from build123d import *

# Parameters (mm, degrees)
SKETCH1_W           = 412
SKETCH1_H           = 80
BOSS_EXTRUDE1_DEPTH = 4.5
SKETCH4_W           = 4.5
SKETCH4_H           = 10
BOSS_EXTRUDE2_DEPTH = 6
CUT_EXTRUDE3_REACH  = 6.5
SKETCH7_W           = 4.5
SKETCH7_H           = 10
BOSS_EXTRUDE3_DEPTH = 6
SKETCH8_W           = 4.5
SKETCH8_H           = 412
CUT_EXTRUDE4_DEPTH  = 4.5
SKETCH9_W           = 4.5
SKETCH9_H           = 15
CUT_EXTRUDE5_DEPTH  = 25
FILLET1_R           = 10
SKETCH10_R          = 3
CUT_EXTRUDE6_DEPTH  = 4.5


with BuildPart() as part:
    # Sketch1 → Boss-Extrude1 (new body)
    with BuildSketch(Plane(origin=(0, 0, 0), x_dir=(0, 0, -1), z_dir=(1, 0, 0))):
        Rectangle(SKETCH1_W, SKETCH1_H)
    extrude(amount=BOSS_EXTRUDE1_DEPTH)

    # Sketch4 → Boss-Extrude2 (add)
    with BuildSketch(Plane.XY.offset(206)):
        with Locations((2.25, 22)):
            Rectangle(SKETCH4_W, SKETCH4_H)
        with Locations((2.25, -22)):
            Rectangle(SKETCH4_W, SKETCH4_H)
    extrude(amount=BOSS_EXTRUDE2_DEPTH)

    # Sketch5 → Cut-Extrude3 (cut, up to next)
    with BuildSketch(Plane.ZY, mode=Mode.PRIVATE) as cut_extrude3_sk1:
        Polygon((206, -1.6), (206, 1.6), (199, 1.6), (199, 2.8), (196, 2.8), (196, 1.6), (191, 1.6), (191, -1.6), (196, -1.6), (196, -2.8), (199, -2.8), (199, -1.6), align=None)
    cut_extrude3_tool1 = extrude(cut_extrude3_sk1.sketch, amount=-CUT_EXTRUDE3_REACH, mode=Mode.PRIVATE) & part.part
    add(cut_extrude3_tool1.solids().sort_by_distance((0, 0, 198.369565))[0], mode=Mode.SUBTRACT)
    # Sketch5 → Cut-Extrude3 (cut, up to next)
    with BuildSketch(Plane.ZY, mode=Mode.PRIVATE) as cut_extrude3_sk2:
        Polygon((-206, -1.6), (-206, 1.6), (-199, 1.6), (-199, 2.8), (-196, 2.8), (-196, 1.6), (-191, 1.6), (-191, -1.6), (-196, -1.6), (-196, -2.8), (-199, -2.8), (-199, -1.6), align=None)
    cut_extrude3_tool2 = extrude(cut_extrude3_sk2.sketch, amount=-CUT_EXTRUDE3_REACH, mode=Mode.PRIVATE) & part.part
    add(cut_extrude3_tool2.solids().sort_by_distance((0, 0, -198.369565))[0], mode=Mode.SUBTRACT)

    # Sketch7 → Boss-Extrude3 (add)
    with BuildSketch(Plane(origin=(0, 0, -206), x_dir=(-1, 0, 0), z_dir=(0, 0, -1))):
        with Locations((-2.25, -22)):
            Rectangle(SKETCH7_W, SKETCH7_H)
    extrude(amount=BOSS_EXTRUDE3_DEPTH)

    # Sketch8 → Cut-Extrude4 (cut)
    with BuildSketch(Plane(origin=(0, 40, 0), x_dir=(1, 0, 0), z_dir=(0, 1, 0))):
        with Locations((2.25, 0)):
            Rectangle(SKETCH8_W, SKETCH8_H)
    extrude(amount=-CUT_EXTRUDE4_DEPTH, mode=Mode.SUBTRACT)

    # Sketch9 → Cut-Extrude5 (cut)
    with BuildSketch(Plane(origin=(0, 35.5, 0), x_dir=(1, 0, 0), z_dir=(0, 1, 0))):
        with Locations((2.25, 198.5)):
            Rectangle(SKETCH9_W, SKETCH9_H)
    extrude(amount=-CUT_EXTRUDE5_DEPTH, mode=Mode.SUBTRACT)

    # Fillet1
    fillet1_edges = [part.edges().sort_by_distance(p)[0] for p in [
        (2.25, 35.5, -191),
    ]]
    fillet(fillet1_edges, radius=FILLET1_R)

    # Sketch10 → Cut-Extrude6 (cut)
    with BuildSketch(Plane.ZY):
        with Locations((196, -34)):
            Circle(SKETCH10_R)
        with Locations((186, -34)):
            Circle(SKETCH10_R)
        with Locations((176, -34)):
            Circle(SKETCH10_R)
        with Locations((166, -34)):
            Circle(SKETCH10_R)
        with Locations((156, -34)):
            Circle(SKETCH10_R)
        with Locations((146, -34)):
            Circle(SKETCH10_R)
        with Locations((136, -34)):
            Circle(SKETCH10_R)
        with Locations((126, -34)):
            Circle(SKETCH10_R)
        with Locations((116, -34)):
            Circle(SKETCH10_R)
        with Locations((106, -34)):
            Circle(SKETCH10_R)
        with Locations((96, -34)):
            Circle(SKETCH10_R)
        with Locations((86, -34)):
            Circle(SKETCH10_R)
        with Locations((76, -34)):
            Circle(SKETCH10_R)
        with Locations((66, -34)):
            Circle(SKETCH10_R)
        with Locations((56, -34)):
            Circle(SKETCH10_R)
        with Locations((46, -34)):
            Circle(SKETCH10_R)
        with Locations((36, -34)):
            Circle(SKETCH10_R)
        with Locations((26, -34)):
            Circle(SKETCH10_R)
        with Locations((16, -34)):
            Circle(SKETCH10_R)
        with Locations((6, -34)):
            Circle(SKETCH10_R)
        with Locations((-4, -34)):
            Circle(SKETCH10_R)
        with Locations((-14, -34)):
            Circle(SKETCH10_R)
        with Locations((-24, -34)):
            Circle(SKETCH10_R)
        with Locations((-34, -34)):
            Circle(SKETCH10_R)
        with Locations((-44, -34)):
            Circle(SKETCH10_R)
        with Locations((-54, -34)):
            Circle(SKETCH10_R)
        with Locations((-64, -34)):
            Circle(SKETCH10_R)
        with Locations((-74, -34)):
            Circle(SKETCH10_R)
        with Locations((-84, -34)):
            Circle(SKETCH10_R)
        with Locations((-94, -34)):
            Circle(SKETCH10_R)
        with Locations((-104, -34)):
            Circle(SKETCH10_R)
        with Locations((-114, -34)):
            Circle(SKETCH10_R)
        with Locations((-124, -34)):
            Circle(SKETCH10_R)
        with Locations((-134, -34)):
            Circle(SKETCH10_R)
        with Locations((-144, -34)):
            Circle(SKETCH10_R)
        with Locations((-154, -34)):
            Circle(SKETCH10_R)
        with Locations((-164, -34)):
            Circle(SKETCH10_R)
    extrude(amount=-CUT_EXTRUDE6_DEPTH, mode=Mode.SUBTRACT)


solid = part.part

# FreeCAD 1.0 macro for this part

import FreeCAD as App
import Part
import Sketcher
from FreeCAD import Vector
Q = App.Units.Quantity


def edges_at(feature, points):
    """Names of the edges that pass closest to the given points."""
    edges = feature.Shape.Edges
    near = lambda p: min(range(len(edges)), key=lambda i: edges[i].distToShape(Part.Vertex(*p))[0])
    return sorted({f"Edge{near(p) + 1}" for p in points})


def add_polygon(sketch, points):
    """Adds a closed chain of lines whose ends are joined by coincident constraints."""
    first, n = sketch.GeometryCount, len(points)
    for a, b in zip(points, points[1:] + points[:1]):
        sketch.addGeometry(Part.LineSegment(App.Vector(*a, 0), App.Vector(*b, 0)), False)
    for i in range(n):
        sketch.addConstraint(Sketcher.Constraint("Coincident", first + i, 2, first + (i + 1) % n, 1))

doc = App.newDocument("Part")
body = doc.addObject("PartDesign::Body", "Body")

sketch1 = body.newObject("Sketcher::SketchObject", "Sketch")
sketch1.AttachmentSupport = (doc.getObject("YZ_Plane"), [""])
sketch1.MapMode = "FlatFace"
add_polygon(sketch1, [(40, 206), (-40, 206), (-40, -206), (40, -206)])
sketch1.addConstraint(Sketcher.Constraint("Horizontal", 0))
sketch1.addConstraint(Sketcher.Constraint("Vertical", 1))
sketch1.addConstraint(Sketcher.Constraint("Horizontal", 2))
sketch1.addConstraint(Sketcher.Constraint("Vertical", 3))
sketch1.addConstraint(Sketcher.Constraint("Symmetric", 0, 2, 2, 2, -1, 1))
sketch1.addConstraint(Sketcher.Constraint("DistanceX", 0, 2, 0, 1, Q("80 mm")))
sketch1.addConstraint(Sketcher.Constraint("DistanceY", 1, 2, 1, 1, Q("412 mm")))
pad1 = body.newObject("PartDesign::Pad", "Pad")
pad1.Profile = sketch1
pad1.Length = 4.5

sketch2 = body.newObject("Sketcher::SketchObject", "Sketch001")
sketch2.AttachmentSupport = (doc.getObject("XY_Plane"), [""])
sketch2.MapMode = "FlatFace"
sketch2.AttachmentOffset = App.Placement(Vector(0, 0, 206), App.Rotation())
add_polygon(sketch2, [(0, 27), (0, 17), (4.5, 17), (4.5, 27)])
add_polygon(sketch2, [(0, -17), (0, -27), (4.5, -27), (4.5, -17)])
sketch2.addConstraint(Sketcher.Constraint("Vertical", 0))
sketch2.addConstraint(Sketcher.Constraint("Horizontal", 1))
sketch2.addConstraint(Sketcher.Constraint("Vertical", 2))
sketch2.addConstraint(Sketcher.Constraint("Horizontal", 3))
sketch2.addConstraint(Sketcher.Constraint("Vertical", 4))
sketch2.addConstraint(Sketcher.Constraint("Horizontal", 5))
sketch2.addConstraint(Sketcher.Constraint("Vertical", 6))
sketch2.addConstraint(Sketcher.Constraint("Horizontal", 7))
sketch2.addConstraint(Sketcher.Constraint("Symmetric", 3, 2, 4, 2, -1, 1))
sketch2.addConstraint(Sketcher.Constraint("Symmetric", 1, 2, 6, 2, -1))
sketch2.addConstraint(Sketcher.Constraint("PointOnObject", 0, 2, -2))
sketch2.addConstraint(Sketcher.Constraint("DistanceY", 0, 2, 0, 1, Q("10 mm")))
sketch2.addConstraint(Sketcher.Constraint("DistanceX", 1, 1, 1, 2, Q("4.5 mm")))
sketch2.addConstraint(Sketcher.Constraint("DistanceY", -1, 1, 0, 2, Q("17 mm")))
pad2 = body.newObject("PartDesign::Pad", "Pad001")
pad2.Profile = sketch2
pad2.Length = 6

sketch3 = body.newObject("Sketcher::SketchObject", "Sketch002")
sketch3.AttachmentSupport = (doc.getObject("YZ_Plane"), [""])
sketch3.MapMode = "FlatFace"
add_polygon(sketch3, [(-1.6, 206), (1.6, 206), (1.6, 199), (2.8, 199), (2.8, 196), (1.6, 196), (1.6, 191), (-1.6, 191), (-1.6, 196), (-2.8, 196), (-2.8, 199), (-1.6, 199)])
sketch3.addConstraint(Sketcher.Constraint("Horizontal", 0))
sketch3.addConstraint(Sketcher.Constraint("Vertical", 1))
sketch3.addConstraint(Sketcher.Constraint("Horizontal", 2))
sketch3.addConstraint(Sketcher.Constraint("Vertical", 3))
sketch3.addConstraint(Sketcher.Constraint("Horizontal", 4))
sketch3.addConstraint(Sketcher.Constraint("Vertical", 5))
sketch3.addConstraint(Sketcher.Constraint("Horizontal", 6))
sketch3.addConstraint(Sketcher.Constraint("Vertical", 7))
sketch3.addConstraint(Sketcher.Constraint("Horizontal", 8))
sketch3.addConstraint(Sketcher.Constraint("Vertical", 9))
sketch3.addConstraint(Sketcher.Constraint("Horizontal", 10))
sketch3.addConstraint(Sketcher.Constraint("Vertical", 11))
sketch3.addConstraint(Sketcher.Constraint("Symmetric", 4, 2, 7, 2, -2))
sketch3.addConstraint(Sketcher.Constraint("Symmetric", 2, 2, 9, 2, -2))
sketch3.addConstraint(Sketcher.Constraint("Vertical", 1, 2, 4, 2))
sketch3.addConstraint(Sketcher.Constraint("Vertical", 7, 2, 10, 2))
sketch3.addConstraint(Sketcher.Constraint("DistanceY", 1, 2, 1, 1, Q("7 mm")))
sketch3.addConstraint(Sketcher.Constraint("DistanceY", 3, 2, 3, 1, Q("3 mm")))
sketch3.addConstraint(Sketcher.Constraint("DistanceY", 5, 2, 5, 1, Q("5 mm")))
sketch3.addConstraint(Sketcher.Constraint("DistanceX", 0, 1, 0, 2, Q("3.2 mm")))
sketch3.addConstraint(Sketcher.Constraint("DistanceX", 2, 1, 2, 2, Q("1.2 mm")))
sketch3.addConstraint(Sketcher.Constraint("DistanceY", -1, 1, 0, 2, Q("206 mm")))
pocket1 = body.newObject("PartDesign::Pocket", "Pocket")
pocket1.Profile = sketch3
pocket1.Type = "UpToFirst"
pocket1.Reversed = True

sketch4 = body.newObject("Sketcher::SketchObject", "Sketch003")
sketch4.AttachmentSupport = (doc.getObject("YZ_Plane"), [""])
sketch4.MapMode = "FlatFace"
add_polygon(sketch4, [(1.6, -206), (-1.6, -206), (-1.6, -199), (-2.8, -199), (-2.8, -196), (-1.6, -196), (-1.6, -191), (1.6, -191), (1.6, -196), (2.8, -196), (2.8, -199), (1.6, -199)])
sketch4.addConstraint(Sketcher.Constraint("Horizontal", 0))
sketch4.addConstraint(Sketcher.Constraint("Vertical", 1))
sketch4.addConstraint(Sketcher.Constraint("Horizontal", 2))
sketch4.addConstraint(Sketcher.Constraint("Vertical", 3))
sketch4.addConstraint(Sketcher.Constraint("Horizontal", 4))
sketch4.addConstraint(Sketcher.Constraint("Vertical", 5))
sketch4.addConstraint(Sketcher.Constraint("Horizontal", 6))
sketch4.addConstraint(Sketcher.Constraint("Vertical", 7))
sketch4.addConstraint(Sketcher.Constraint("Horizontal", 8))
sketch4.addConstraint(Sketcher.Constraint("Vertical", 9))
sketch4.addConstraint(Sketcher.Constraint("Horizontal", 10))
sketch4.addConstraint(Sketcher.Constraint("Vertical", 11))
sketch4.addConstraint(Sketcher.Constraint("Symmetric", 4, 2, 7, 2, -2))
sketch4.addConstraint(Sketcher.Constraint("Symmetric", 2, 2, 9, 2, -2))
sketch4.addConstraint(Sketcher.Constraint("Vertical", 1, 2, 4, 2))
sketch4.addConstraint(Sketcher.Constraint("Vertical", 7, 2, 10, 2))
sketch4.addConstraint(Sketcher.Constraint("DistanceY", 1, 1, 1, 2, Q("7 mm")))
sketch4.addConstraint(Sketcher.Constraint("DistanceY", 3, 1, 3, 2, Q("3 mm")))
sketch4.addConstraint(Sketcher.Constraint("DistanceY", 5, 1, 5, 2, Q("5 mm")))
sketch4.addConstraint(Sketcher.Constraint("DistanceX", 0, 2, 0, 1, Q("3.2 mm")))
sketch4.addConstraint(Sketcher.Constraint("DistanceX", 2, 2, 2, 1, Q("1.2 mm")))
sketch4.addConstraint(Sketcher.Constraint("DistanceY", 0, 2, -1, 1, Q("206 mm")))
pocket2 = body.newObject("PartDesign::Pocket", "Pocket001")
pocket2.Profile = sketch4
pocket2.Type = "UpToFirst"
pocket2.Reversed = True

sketch5 = body.newObject("Sketcher::SketchObject", "Sketch004")
sketch5.AttachmentSupport = (doc.getObject("XY_Plane"), [""])
sketch5.MapMode = "FlatFace"
sketch5.AttachmentOffset = App.Placement(Vector(0, 0, -206), App.Rotation())
add_polygon(sketch5, [(4.5, -17), (4.5, -27), (0, -27), (0, -17)])
sketch5.addConstraint(Sketcher.Constraint("Vertical", 0))
sketch5.addConstraint(Sketcher.Constraint("Horizontal", 1))
sketch5.addConstraint(Sketcher.Constraint("Vertical", 2))
sketch5.addConstraint(Sketcher.Constraint("Horizontal", 3))
sketch5.addConstraint(Sketcher.Constraint("PointOnObject", 1, 2, -2))
sketch5.addConstraint(Sketcher.Constraint("DistanceY", 0, 2, 0, 1, Q("10 mm")))
sketch5.addConstraint(Sketcher.Constraint("DistanceX", 1, 2, 1, 1, Q("4.5 mm")))
sketch5.addConstraint(Sketcher.Constraint("DistanceY", 0, 2, -1, 1, Q("27 mm")))
pad3 = body.newObject("PartDesign::Pad", "Pad002")
pad3.Profile = sketch5
pad3.Length = 6
pad3.Reversed = True

sketch6 = body.newObject("Sketcher::SketchObject", "Sketch005")
sketch6.AttachmentSupport = (doc.getObject("XZ_Plane"), [""])
sketch6.MapMode = "FlatFace"
sketch6.AttachmentOffset = App.Placement(Vector(0, 0, -40), App.Rotation())
add_polygon(sketch6, [(0, -206), (0, 206), (4.5, 206), (4.5, -206)])
sketch6.addConstraint(Sketcher.Constraint("Vertical", 0))
sketch6.addConstraint(Sketcher.Constraint("Horizontal", 1))
sketch6.addConstraint(Sketcher.Constraint("Vertical", 2))
sketch6.addConstraint(Sketcher.Constraint("Horizontal", 3))
sketch6.addConstraint(Sketcher.Constraint("Symmetric", 0, 2, 3, 2, -1, 1))
sketch6.addConstraint(Sketcher.Constraint("DistanceY", 0, 1, 0, 2, Q("412 mm")))
sketch6.addConstraint(Sketcher.Constraint("DistanceX", 1, 1, 1, 2, Q("4.5 mm")))
pocket3 = body.newObject("PartDesign::Pocket", "Pocket002")
pocket3.Profile = sketch6
pocket3.Length = 4.5
pocket3.Reversed = True

sketch7 = body.newObject("Sketcher::SketchObject", "Sketch006")
sketch7.AttachmentSupport = (doc.getObject("XZ_Plane"), [""])
sketch7.MapMode = "FlatFace"
sketch7.AttachmentOffset = App.Placement(Vector(0, 0, -35.5), App.Rotation())
add_polygon(sketch7, [(0, -206), (0, -191), (4.5, -191), (4.5, -206)])
sketch7.addConstraint(Sketcher.Constraint("Vertical", 0))
sketch7.addConstraint(Sketcher.Constraint("Horizontal", 1))
sketch7.addConstraint(Sketcher.Constraint("Vertical", 2))
sketch7.addConstraint(Sketcher.Constraint("Horizontal", 3))
sketch7.addConstraint(Sketcher.Constraint("PointOnObject", 0, 2, -2))
sketch7.addConstraint(Sketcher.Constraint("DistanceY", 0, 1, 0, 2, Q("15 mm")))
sketch7.addConstraint(Sketcher.Constraint("DistanceX", 1, 1, 1, 2, Q("4.5 mm")))
sketch7.addConstraint(Sketcher.Constraint("DistanceY", 0, 2, -1, 1, Q("191 mm")))
pocket4 = body.newObject("PartDesign::Pocket", "Pocket003")
pocket4.Profile = sketch7
pocket4.Length = 25
pocket4.Reversed = True
doc.recompute()

fillet = body.newObject("PartDesign::Fillet", "Fillet")
fillet.Base = (pocket4, edges_at(pocket4, [(2.25, 35.5, -191)]))
fillet.Radius = 10

sketch8 = body.newObject("Sketcher::SketchObject", "Sketch007")
sketch8.AttachmentSupport = (doc.getObject("YZ_Plane"), [""])
sketch8.MapMode = "FlatFace"
sketch8.addGeometry(Part.Circle(Vector(-34, 196, 0), Vector(0, 0, 1), 3), False)
sketch8.addGeometry(Part.Circle(Vector(-34, 186, 0), Vector(0, 0, 1), 3), False)
sketch8.addGeometry(Part.Circle(Vector(-34, 176, 0), Vector(0, 0, 1), 3), False)
sketch8.addGeometry(Part.Circle(Vector(-34, 166, 0), Vector(0, 0, 1), 3), False)
sketch8.addGeometry(Part.Circle(Vector(-34, 156, 0), Vector(0, 0, 1), 3), False)
sketch8.addGeometry(Part.Circle(Vector(-34, 146, 0), Vector(0, 0, 1), 3), False)
sketch8.addGeometry(Part.Circle(Vector(-34, 136, 0), Vector(0, 0, 1), 3), False)
sketch8.addGeometry(Part.Circle(Vector(-34, 126, 0), Vector(0, 0, 1), 3), False)
sketch8.addGeometry(Part.Circle(Vector(-34, 116, 0), Vector(0, 0, 1), 3), False)
sketch8.addGeometry(Part.Circle(Vector(-34, 106, 0), Vector(0, 0, 1), 3), False)
sketch8.addGeometry(Part.Circle(Vector(-34, 96, 0), Vector(0, 0, 1), 3), False)
sketch8.addGeometry(Part.Circle(Vector(-34, 86, 0), Vector(0, 0, 1), 3), False)
sketch8.addGeometry(Part.Circle(Vector(-34, 76, 0), Vector(0, 0, 1), 3), False)
sketch8.addGeometry(Part.Circle(Vector(-34, 66, 0), Vector(0, 0, 1), 3), False)
sketch8.addGeometry(Part.Circle(Vector(-34, 56, 0), Vector(0, 0, 1), 3), False)
sketch8.addGeometry(Part.Circle(Vector(-34, 46, 0), Vector(0, 0, 1), 3), False)
sketch8.addGeometry(Part.Circle(Vector(-34, 36, 0), Vector(0, 0, 1), 3), False)
sketch8.addGeometry(Part.Circle(Vector(-34, 26, 0), Vector(0, 0, 1), 3), False)
sketch8.addGeometry(Part.Circle(Vector(-34, 16, 0), Vector(0, 0, 1), 3), False)
sketch8.addGeometry(Part.Circle(Vector(-34, 6, 0), Vector(0, 0, 1), 3), False)
sketch8.addGeometry(Part.Circle(Vector(-34, -4, 0), Vector(0, 0, 1), 3), False)
sketch8.addGeometry(Part.Circle(Vector(-34, -14, 0), Vector(0, 0, 1), 3), False)
sketch8.addGeometry(Part.Circle(Vector(-34, -24, 0), Vector(0, 0, 1), 3), False)
sketch8.addGeometry(Part.Circle(Vector(-34, -34, 0), Vector(0, 0, 1), 3), False)
sketch8.addGeometry(Part.Circle(Vector(-34, -44, 0), Vector(0, 0, 1), 3), False)
sketch8.addGeometry(Part.Circle(Vector(-34, -54, 0), Vector(0, 0, 1), 3), False)
sketch8.addGeometry(Part.Circle(Vector(-34, -64, 0), Vector(0, 0, 1), 3), False)
sketch8.addGeometry(Part.Circle(Vector(-34, -74, 0), Vector(0, 0, 1), 3), False)
sketch8.addGeometry(Part.Circle(Vector(-34, -84, 0), Vector(0, 0, 1), 3), False)
sketch8.addGeometry(Part.Circle(Vector(-34, -94, 0), Vector(0, 0, 1), 3), False)
sketch8.addGeometry(Part.Circle(Vector(-34, -104, 0), Vector(0, 0, 1), 3), False)
sketch8.addGeometry(Part.Circle(Vector(-34, -114, 0), Vector(0, 0, 1), 3), False)
sketch8.addGeometry(Part.Circle(Vector(-34, -124, 0), Vector(0, 0, 1), 3), False)
sketch8.addGeometry(Part.Circle(Vector(-34, -134, 0), Vector(0, 0, 1), 3), False)
sketch8.addGeometry(Part.Circle(Vector(-34, -144, 0), Vector(0, 0, 1), 3), False)
sketch8.addGeometry(Part.Circle(Vector(-34, -154, 0), Vector(0, 0, 1), 3), False)
sketch8.addGeometry(Part.Circle(Vector(-34, -164, 0), Vector(0, 0, 1), 3), False)
sketch8.addConstraint(Sketcher.Constraint("Equal", 0, 1))
sketch8.addConstraint(Sketcher.Constraint("Equal", 1, 2))
sketch8.addConstraint(Sketcher.Constraint("Equal", 2, 3))
sketch8.addConstraint(Sketcher.Constraint("Equal", 3, 4))
sketch8.addConstraint(Sketcher.Constraint("Equal", 4, 5))
sketch8.addConstraint(Sketcher.Constraint("Equal", 5, 6))
sketch8.addConstraint(Sketcher.Constraint("Equal", 6, 7))
sketch8.addConstraint(Sketcher.Constraint("Equal", 7, 8))
sketch8.addConstraint(Sketcher.Constraint("Equal", 8, 9))
sketch8.addConstraint(Sketcher.Constraint("Equal", 9, 10))
sketch8.addConstraint(Sketcher.Constraint("Equal", 10, 11))
sketch8.addConstraint(Sketcher.Constraint("Equal", 11, 12))
sketch8.addConstraint(Sketcher.Constraint("Equal", 12, 13))
sketch8.addConstraint(Sketcher.Constraint("Equal", 13, 14))
sketch8.addConstraint(Sketcher.Constraint("Equal", 14, 15))
sketch8.addConstraint(Sketcher.Constraint("Equal", 15, 16))
sketch8.addConstraint(Sketcher.Constraint("Equal", 16, 17))
sketch8.addConstraint(Sketcher.Constraint("Equal", 17, 18))
sketch8.addConstraint(Sketcher.Constraint("Equal", 18, 19))
sketch8.addConstraint(Sketcher.Constraint("Equal", 19, 20))
sketch8.addConstraint(Sketcher.Constraint("Equal", 20, 21))
sketch8.addConstraint(Sketcher.Constraint("Equal", 21, 22))
sketch8.addConstraint(Sketcher.Constraint("Equal", 22, 23))
sketch8.addConstraint(Sketcher.Constraint("Equal", 23, 24))
sketch8.addConstraint(Sketcher.Constraint("Equal", 24, 25))
sketch8.addConstraint(Sketcher.Constraint("Equal", 25, 26))
sketch8.addConstraint(Sketcher.Constraint("Equal", 26, 27))
sketch8.addConstraint(Sketcher.Constraint("Equal", 27, 28))
sketch8.addConstraint(Sketcher.Constraint("Equal", 28, 29))
sketch8.addConstraint(Sketcher.Constraint("Equal", 29, 30))
sketch8.addConstraint(Sketcher.Constraint("Equal", 30, 31))
sketch8.addConstraint(Sketcher.Constraint("Equal", 31, 32))
sketch8.addConstraint(Sketcher.Constraint("Equal", 32, 33))
sketch8.addConstraint(Sketcher.Constraint("Equal", 33, 34))
sketch8.addConstraint(Sketcher.Constraint("Equal", 34, 35))
sketch8.addConstraint(Sketcher.Constraint("Equal", 35, 36))
sketch8.addConstraint(Sketcher.Constraint("Vertical", 0, 3, 1, 3))
sketch8.addConstraint(Sketcher.Constraint("Vertical", 1, 3, 2, 3))
sketch8.addConstraint(Sketcher.Constraint("Vertical", 2, 3, 3, 3))
sketch8.addConstraint(Sketcher.Constraint("Vertical", 3, 3, 4, 3))
sketch8.addConstraint(Sketcher.Constraint("Vertical", 4, 3, 5, 3))
sketch8.addConstraint(Sketcher.Constraint("Vertical", 5, 3, 6, 3))
sketch8.addConstraint(Sketcher.Constraint("Vertical", 6, 3, 7, 3))
sketch8.addConstraint(Sketcher.Constraint("Vertical", 7, 3, 8, 3))
sketch8.addConstraint(Sketcher.Constraint("Vertical", 8, 3, 9, 3))
sketch8.addConstraint(Sketcher.Constraint("Vertical", 9, 3, 10, 3))
sketch8.addConstraint(Sketcher.Constraint("Vertical", 10, 3, 11, 3))
sketch8.addConstraint(Sketcher.Constraint("Vertical", 11, 3, 12, 3))
sketch8.addConstraint(Sketcher.Constraint("Vertical", 12, 3, 13, 3))
sketch8.addConstraint(Sketcher.Constraint("Vertical", 13, 3, 14, 3))
sketch8.addConstraint(Sketcher.Constraint("Vertical", 14, 3, 15, 3))
sketch8.addConstraint(Sketcher.Constraint("Vertical", 15, 3, 16, 3))
sketch8.addConstraint(Sketcher.Constraint("Vertical", 16, 3, 17, 3))
sketch8.addConstraint(Sketcher.Constraint("Vertical", 17, 3, 18, 3))
sketch8.addConstraint(Sketcher.Constraint("Vertical", 18, 3, 19, 3))
sketch8.addConstraint(Sketcher.Constraint("Vertical", 19, 3, 20, 3))
sketch8.addConstraint(Sketcher.Constraint("Vertical", 20, 3, 21, 3))
sketch8.addConstraint(Sketcher.Constraint("Vertical", 21, 3, 22, 3))
sketch8.addConstraint(Sketcher.Constraint("Vertical", 22, 3, 23, 3))
sketch8.addConstraint(Sketcher.Constraint("Vertical", 23, 3, 24, 3))
sketch8.addConstraint(Sketcher.Constraint("Vertical", 24, 3, 25, 3))
sketch8.addConstraint(Sketcher.Constraint("Vertical", 25, 3, 26, 3))
sketch8.addConstraint(Sketcher.Constraint("Vertical", 26, 3, 27, 3))
sketch8.addConstraint(Sketcher.Constraint("Vertical", 27, 3, 28, 3))
sketch8.addConstraint(Sketcher.Constraint("Vertical", 28, 3, 29, 3))
sketch8.addConstraint(Sketcher.Constraint("Vertical", 29, 3, 30, 3))
sketch8.addConstraint(Sketcher.Constraint("Vertical", 30, 3, 31, 3))
sketch8.addConstraint(Sketcher.Constraint("Vertical", 31, 3, 32, 3))
sketch8.addConstraint(Sketcher.Constraint("Vertical", 32, 3, 33, 3))
sketch8.addConstraint(Sketcher.Constraint("Vertical", 33, 3, 34, 3))
sketch8.addConstraint(Sketcher.Constraint("Vertical", 34, 3, 35, 3))
sketch8.addConstraint(Sketcher.Constraint("Vertical", 35, 3, 36, 3))
sketch8.addConstraint(Sketcher.Constraint("Diameter", 0, Q("6 mm")))
sketch8.addConstraint(Sketcher.Constraint("DistanceX", 0, 3, -1, 1, Q("34 mm")))
sketch8.addConstraint(Sketcher.Constraint("DistanceY", -1, 1, 0, 3, Q("196 mm")))
sketch8.addConstraint(Sketcher.Constraint("DistanceY", -1, 1, 1, 3, Q("186 mm")))
sketch8.addConstraint(Sketcher.Constraint("DistanceY", -1, 1, 2, 3, Q("176 mm")))
sketch8.addConstraint(Sketcher.Constraint("DistanceY", -1, 1, 3, 3, Q("166 mm")))
sketch8.addConstraint(Sketcher.Constraint("DistanceY", -1, 1, 4, 3, Q("156 mm")))
sketch8.addConstraint(Sketcher.Constraint("DistanceY", -1, 1, 5, 3, Q("146 mm")))
sketch8.addConstraint(Sketcher.Constraint("DistanceY", -1, 1, 6, 3, Q("136 mm")))
sketch8.addConstraint(Sketcher.Constraint("DistanceY", -1, 1, 7, 3, Q("126 mm")))
sketch8.addConstraint(Sketcher.Constraint("DistanceY", -1, 1, 8, 3, Q("116 mm")))
sketch8.addConstraint(Sketcher.Constraint("DistanceY", -1, 1, 9, 3, Q("106 mm")))
sketch8.addConstraint(Sketcher.Constraint("DistanceY", -1, 1, 10, 3, Q("96 mm")))
sketch8.addConstraint(Sketcher.Constraint("DistanceY", -1, 1, 11, 3, Q("86 mm")))
sketch8.addConstraint(Sketcher.Constraint("DistanceY", -1, 1, 12, 3, Q("76 mm")))
sketch8.addConstraint(Sketcher.Constraint("DistanceY", -1, 1, 13, 3, Q("66 mm")))
sketch8.addConstraint(Sketcher.Constraint("DistanceY", -1, 1, 14, 3, Q("56 mm")))
sketch8.addConstraint(Sketcher.Constraint("DistanceY", -1, 1, 15, 3, Q("46 mm")))
sketch8.addConstraint(Sketcher.Constraint("DistanceY", -1, 1, 16, 3, Q("36 mm")))
sketch8.addConstraint(Sketcher.Constraint("DistanceY", -1, 1, 17, 3, Q("26 mm")))
sketch8.addConstraint(Sketcher.Constraint("DistanceY", -1, 1, 18, 3, Q("16 mm")))
sketch8.addConstraint(Sketcher.Constraint("DistanceY", -1, 1, 19, 3, Q("6 mm")))
sketch8.addConstraint(Sketcher.Constraint("DistanceY", 20, 3, -1, 1, Q("4 mm")))
sketch8.addConstraint(Sketcher.Constraint("DistanceY", 21, 3, -1, 1, Q("14 mm")))
sketch8.addConstraint(Sketcher.Constraint("DistanceY", 22, 3, -1, 1, Q("24 mm")))
sketch8.addConstraint(Sketcher.Constraint("DistanceY", 23, 3, -1, 1, Q("34 mm")))
sketch8.addConstraint(Sketcher.Constraint("DistanceY", 24, 3, -1, 1, Q("44 mm")))
sketch8.addConstraint(Sketcher.Constraint("DistanceY", 25, 3, -1, 1, Q("54 mm")))
sketch8.addConstraint(Sketcher.Constraint("DistanceY", 26, 3, -1, 1, Q("64 mm")))
sketch8.addConstraint(Sketcher.Constraint("DistanceY", 27, 3, -1, 1, Q("74 mm")))
sketch8.addConstraint(Sketcher.Constraint("DistanceY", 28, 3, -1, 1, Q("84 mm")))
sketch8.addConstraint(Sketcher.Constraint("DistanceY", 29, 3, -1, 1, Q("94 mm")))
sketch8.addConstraint(Sketcher.Constraint("DistanceY", 30, 3, -1, 1, Q("104 mm")))
sketch8.addConstraint(Sketcher.Constraint("DistanceY", 31, 3, -1, 1, Q("114 mm")))
sketch8.addConstraint(Sketcher.Constraint("DistanceY", 32, 3, -1, 1, Q("124 mm")))
sketch8.addConstraint(Sketcher.Constraint("DistanceY", 33, 3, -1, 1, Q("134 mm")))
sketch8.addConstraint(Sketcher.Constraint("DistanceY", 34, 3, -1, 1, Q("144 mm")))
sketch8.addConstraint(Sketcher.Constraint("DistanceY", 35, 3, -1, 1, Q("154 mm")))
sketch8.addConstraint(Sketcher.Constraint("DistanceY", 36, 3, -1, 1, Q("164 mm")))
pocket5 = body.newObject("PartDesign::Pocket", "Pocket004")
pocket5.Profile = sketch8
pocket5.Length = 4.5
pocket5.Reversed = True

doc.recompute()
